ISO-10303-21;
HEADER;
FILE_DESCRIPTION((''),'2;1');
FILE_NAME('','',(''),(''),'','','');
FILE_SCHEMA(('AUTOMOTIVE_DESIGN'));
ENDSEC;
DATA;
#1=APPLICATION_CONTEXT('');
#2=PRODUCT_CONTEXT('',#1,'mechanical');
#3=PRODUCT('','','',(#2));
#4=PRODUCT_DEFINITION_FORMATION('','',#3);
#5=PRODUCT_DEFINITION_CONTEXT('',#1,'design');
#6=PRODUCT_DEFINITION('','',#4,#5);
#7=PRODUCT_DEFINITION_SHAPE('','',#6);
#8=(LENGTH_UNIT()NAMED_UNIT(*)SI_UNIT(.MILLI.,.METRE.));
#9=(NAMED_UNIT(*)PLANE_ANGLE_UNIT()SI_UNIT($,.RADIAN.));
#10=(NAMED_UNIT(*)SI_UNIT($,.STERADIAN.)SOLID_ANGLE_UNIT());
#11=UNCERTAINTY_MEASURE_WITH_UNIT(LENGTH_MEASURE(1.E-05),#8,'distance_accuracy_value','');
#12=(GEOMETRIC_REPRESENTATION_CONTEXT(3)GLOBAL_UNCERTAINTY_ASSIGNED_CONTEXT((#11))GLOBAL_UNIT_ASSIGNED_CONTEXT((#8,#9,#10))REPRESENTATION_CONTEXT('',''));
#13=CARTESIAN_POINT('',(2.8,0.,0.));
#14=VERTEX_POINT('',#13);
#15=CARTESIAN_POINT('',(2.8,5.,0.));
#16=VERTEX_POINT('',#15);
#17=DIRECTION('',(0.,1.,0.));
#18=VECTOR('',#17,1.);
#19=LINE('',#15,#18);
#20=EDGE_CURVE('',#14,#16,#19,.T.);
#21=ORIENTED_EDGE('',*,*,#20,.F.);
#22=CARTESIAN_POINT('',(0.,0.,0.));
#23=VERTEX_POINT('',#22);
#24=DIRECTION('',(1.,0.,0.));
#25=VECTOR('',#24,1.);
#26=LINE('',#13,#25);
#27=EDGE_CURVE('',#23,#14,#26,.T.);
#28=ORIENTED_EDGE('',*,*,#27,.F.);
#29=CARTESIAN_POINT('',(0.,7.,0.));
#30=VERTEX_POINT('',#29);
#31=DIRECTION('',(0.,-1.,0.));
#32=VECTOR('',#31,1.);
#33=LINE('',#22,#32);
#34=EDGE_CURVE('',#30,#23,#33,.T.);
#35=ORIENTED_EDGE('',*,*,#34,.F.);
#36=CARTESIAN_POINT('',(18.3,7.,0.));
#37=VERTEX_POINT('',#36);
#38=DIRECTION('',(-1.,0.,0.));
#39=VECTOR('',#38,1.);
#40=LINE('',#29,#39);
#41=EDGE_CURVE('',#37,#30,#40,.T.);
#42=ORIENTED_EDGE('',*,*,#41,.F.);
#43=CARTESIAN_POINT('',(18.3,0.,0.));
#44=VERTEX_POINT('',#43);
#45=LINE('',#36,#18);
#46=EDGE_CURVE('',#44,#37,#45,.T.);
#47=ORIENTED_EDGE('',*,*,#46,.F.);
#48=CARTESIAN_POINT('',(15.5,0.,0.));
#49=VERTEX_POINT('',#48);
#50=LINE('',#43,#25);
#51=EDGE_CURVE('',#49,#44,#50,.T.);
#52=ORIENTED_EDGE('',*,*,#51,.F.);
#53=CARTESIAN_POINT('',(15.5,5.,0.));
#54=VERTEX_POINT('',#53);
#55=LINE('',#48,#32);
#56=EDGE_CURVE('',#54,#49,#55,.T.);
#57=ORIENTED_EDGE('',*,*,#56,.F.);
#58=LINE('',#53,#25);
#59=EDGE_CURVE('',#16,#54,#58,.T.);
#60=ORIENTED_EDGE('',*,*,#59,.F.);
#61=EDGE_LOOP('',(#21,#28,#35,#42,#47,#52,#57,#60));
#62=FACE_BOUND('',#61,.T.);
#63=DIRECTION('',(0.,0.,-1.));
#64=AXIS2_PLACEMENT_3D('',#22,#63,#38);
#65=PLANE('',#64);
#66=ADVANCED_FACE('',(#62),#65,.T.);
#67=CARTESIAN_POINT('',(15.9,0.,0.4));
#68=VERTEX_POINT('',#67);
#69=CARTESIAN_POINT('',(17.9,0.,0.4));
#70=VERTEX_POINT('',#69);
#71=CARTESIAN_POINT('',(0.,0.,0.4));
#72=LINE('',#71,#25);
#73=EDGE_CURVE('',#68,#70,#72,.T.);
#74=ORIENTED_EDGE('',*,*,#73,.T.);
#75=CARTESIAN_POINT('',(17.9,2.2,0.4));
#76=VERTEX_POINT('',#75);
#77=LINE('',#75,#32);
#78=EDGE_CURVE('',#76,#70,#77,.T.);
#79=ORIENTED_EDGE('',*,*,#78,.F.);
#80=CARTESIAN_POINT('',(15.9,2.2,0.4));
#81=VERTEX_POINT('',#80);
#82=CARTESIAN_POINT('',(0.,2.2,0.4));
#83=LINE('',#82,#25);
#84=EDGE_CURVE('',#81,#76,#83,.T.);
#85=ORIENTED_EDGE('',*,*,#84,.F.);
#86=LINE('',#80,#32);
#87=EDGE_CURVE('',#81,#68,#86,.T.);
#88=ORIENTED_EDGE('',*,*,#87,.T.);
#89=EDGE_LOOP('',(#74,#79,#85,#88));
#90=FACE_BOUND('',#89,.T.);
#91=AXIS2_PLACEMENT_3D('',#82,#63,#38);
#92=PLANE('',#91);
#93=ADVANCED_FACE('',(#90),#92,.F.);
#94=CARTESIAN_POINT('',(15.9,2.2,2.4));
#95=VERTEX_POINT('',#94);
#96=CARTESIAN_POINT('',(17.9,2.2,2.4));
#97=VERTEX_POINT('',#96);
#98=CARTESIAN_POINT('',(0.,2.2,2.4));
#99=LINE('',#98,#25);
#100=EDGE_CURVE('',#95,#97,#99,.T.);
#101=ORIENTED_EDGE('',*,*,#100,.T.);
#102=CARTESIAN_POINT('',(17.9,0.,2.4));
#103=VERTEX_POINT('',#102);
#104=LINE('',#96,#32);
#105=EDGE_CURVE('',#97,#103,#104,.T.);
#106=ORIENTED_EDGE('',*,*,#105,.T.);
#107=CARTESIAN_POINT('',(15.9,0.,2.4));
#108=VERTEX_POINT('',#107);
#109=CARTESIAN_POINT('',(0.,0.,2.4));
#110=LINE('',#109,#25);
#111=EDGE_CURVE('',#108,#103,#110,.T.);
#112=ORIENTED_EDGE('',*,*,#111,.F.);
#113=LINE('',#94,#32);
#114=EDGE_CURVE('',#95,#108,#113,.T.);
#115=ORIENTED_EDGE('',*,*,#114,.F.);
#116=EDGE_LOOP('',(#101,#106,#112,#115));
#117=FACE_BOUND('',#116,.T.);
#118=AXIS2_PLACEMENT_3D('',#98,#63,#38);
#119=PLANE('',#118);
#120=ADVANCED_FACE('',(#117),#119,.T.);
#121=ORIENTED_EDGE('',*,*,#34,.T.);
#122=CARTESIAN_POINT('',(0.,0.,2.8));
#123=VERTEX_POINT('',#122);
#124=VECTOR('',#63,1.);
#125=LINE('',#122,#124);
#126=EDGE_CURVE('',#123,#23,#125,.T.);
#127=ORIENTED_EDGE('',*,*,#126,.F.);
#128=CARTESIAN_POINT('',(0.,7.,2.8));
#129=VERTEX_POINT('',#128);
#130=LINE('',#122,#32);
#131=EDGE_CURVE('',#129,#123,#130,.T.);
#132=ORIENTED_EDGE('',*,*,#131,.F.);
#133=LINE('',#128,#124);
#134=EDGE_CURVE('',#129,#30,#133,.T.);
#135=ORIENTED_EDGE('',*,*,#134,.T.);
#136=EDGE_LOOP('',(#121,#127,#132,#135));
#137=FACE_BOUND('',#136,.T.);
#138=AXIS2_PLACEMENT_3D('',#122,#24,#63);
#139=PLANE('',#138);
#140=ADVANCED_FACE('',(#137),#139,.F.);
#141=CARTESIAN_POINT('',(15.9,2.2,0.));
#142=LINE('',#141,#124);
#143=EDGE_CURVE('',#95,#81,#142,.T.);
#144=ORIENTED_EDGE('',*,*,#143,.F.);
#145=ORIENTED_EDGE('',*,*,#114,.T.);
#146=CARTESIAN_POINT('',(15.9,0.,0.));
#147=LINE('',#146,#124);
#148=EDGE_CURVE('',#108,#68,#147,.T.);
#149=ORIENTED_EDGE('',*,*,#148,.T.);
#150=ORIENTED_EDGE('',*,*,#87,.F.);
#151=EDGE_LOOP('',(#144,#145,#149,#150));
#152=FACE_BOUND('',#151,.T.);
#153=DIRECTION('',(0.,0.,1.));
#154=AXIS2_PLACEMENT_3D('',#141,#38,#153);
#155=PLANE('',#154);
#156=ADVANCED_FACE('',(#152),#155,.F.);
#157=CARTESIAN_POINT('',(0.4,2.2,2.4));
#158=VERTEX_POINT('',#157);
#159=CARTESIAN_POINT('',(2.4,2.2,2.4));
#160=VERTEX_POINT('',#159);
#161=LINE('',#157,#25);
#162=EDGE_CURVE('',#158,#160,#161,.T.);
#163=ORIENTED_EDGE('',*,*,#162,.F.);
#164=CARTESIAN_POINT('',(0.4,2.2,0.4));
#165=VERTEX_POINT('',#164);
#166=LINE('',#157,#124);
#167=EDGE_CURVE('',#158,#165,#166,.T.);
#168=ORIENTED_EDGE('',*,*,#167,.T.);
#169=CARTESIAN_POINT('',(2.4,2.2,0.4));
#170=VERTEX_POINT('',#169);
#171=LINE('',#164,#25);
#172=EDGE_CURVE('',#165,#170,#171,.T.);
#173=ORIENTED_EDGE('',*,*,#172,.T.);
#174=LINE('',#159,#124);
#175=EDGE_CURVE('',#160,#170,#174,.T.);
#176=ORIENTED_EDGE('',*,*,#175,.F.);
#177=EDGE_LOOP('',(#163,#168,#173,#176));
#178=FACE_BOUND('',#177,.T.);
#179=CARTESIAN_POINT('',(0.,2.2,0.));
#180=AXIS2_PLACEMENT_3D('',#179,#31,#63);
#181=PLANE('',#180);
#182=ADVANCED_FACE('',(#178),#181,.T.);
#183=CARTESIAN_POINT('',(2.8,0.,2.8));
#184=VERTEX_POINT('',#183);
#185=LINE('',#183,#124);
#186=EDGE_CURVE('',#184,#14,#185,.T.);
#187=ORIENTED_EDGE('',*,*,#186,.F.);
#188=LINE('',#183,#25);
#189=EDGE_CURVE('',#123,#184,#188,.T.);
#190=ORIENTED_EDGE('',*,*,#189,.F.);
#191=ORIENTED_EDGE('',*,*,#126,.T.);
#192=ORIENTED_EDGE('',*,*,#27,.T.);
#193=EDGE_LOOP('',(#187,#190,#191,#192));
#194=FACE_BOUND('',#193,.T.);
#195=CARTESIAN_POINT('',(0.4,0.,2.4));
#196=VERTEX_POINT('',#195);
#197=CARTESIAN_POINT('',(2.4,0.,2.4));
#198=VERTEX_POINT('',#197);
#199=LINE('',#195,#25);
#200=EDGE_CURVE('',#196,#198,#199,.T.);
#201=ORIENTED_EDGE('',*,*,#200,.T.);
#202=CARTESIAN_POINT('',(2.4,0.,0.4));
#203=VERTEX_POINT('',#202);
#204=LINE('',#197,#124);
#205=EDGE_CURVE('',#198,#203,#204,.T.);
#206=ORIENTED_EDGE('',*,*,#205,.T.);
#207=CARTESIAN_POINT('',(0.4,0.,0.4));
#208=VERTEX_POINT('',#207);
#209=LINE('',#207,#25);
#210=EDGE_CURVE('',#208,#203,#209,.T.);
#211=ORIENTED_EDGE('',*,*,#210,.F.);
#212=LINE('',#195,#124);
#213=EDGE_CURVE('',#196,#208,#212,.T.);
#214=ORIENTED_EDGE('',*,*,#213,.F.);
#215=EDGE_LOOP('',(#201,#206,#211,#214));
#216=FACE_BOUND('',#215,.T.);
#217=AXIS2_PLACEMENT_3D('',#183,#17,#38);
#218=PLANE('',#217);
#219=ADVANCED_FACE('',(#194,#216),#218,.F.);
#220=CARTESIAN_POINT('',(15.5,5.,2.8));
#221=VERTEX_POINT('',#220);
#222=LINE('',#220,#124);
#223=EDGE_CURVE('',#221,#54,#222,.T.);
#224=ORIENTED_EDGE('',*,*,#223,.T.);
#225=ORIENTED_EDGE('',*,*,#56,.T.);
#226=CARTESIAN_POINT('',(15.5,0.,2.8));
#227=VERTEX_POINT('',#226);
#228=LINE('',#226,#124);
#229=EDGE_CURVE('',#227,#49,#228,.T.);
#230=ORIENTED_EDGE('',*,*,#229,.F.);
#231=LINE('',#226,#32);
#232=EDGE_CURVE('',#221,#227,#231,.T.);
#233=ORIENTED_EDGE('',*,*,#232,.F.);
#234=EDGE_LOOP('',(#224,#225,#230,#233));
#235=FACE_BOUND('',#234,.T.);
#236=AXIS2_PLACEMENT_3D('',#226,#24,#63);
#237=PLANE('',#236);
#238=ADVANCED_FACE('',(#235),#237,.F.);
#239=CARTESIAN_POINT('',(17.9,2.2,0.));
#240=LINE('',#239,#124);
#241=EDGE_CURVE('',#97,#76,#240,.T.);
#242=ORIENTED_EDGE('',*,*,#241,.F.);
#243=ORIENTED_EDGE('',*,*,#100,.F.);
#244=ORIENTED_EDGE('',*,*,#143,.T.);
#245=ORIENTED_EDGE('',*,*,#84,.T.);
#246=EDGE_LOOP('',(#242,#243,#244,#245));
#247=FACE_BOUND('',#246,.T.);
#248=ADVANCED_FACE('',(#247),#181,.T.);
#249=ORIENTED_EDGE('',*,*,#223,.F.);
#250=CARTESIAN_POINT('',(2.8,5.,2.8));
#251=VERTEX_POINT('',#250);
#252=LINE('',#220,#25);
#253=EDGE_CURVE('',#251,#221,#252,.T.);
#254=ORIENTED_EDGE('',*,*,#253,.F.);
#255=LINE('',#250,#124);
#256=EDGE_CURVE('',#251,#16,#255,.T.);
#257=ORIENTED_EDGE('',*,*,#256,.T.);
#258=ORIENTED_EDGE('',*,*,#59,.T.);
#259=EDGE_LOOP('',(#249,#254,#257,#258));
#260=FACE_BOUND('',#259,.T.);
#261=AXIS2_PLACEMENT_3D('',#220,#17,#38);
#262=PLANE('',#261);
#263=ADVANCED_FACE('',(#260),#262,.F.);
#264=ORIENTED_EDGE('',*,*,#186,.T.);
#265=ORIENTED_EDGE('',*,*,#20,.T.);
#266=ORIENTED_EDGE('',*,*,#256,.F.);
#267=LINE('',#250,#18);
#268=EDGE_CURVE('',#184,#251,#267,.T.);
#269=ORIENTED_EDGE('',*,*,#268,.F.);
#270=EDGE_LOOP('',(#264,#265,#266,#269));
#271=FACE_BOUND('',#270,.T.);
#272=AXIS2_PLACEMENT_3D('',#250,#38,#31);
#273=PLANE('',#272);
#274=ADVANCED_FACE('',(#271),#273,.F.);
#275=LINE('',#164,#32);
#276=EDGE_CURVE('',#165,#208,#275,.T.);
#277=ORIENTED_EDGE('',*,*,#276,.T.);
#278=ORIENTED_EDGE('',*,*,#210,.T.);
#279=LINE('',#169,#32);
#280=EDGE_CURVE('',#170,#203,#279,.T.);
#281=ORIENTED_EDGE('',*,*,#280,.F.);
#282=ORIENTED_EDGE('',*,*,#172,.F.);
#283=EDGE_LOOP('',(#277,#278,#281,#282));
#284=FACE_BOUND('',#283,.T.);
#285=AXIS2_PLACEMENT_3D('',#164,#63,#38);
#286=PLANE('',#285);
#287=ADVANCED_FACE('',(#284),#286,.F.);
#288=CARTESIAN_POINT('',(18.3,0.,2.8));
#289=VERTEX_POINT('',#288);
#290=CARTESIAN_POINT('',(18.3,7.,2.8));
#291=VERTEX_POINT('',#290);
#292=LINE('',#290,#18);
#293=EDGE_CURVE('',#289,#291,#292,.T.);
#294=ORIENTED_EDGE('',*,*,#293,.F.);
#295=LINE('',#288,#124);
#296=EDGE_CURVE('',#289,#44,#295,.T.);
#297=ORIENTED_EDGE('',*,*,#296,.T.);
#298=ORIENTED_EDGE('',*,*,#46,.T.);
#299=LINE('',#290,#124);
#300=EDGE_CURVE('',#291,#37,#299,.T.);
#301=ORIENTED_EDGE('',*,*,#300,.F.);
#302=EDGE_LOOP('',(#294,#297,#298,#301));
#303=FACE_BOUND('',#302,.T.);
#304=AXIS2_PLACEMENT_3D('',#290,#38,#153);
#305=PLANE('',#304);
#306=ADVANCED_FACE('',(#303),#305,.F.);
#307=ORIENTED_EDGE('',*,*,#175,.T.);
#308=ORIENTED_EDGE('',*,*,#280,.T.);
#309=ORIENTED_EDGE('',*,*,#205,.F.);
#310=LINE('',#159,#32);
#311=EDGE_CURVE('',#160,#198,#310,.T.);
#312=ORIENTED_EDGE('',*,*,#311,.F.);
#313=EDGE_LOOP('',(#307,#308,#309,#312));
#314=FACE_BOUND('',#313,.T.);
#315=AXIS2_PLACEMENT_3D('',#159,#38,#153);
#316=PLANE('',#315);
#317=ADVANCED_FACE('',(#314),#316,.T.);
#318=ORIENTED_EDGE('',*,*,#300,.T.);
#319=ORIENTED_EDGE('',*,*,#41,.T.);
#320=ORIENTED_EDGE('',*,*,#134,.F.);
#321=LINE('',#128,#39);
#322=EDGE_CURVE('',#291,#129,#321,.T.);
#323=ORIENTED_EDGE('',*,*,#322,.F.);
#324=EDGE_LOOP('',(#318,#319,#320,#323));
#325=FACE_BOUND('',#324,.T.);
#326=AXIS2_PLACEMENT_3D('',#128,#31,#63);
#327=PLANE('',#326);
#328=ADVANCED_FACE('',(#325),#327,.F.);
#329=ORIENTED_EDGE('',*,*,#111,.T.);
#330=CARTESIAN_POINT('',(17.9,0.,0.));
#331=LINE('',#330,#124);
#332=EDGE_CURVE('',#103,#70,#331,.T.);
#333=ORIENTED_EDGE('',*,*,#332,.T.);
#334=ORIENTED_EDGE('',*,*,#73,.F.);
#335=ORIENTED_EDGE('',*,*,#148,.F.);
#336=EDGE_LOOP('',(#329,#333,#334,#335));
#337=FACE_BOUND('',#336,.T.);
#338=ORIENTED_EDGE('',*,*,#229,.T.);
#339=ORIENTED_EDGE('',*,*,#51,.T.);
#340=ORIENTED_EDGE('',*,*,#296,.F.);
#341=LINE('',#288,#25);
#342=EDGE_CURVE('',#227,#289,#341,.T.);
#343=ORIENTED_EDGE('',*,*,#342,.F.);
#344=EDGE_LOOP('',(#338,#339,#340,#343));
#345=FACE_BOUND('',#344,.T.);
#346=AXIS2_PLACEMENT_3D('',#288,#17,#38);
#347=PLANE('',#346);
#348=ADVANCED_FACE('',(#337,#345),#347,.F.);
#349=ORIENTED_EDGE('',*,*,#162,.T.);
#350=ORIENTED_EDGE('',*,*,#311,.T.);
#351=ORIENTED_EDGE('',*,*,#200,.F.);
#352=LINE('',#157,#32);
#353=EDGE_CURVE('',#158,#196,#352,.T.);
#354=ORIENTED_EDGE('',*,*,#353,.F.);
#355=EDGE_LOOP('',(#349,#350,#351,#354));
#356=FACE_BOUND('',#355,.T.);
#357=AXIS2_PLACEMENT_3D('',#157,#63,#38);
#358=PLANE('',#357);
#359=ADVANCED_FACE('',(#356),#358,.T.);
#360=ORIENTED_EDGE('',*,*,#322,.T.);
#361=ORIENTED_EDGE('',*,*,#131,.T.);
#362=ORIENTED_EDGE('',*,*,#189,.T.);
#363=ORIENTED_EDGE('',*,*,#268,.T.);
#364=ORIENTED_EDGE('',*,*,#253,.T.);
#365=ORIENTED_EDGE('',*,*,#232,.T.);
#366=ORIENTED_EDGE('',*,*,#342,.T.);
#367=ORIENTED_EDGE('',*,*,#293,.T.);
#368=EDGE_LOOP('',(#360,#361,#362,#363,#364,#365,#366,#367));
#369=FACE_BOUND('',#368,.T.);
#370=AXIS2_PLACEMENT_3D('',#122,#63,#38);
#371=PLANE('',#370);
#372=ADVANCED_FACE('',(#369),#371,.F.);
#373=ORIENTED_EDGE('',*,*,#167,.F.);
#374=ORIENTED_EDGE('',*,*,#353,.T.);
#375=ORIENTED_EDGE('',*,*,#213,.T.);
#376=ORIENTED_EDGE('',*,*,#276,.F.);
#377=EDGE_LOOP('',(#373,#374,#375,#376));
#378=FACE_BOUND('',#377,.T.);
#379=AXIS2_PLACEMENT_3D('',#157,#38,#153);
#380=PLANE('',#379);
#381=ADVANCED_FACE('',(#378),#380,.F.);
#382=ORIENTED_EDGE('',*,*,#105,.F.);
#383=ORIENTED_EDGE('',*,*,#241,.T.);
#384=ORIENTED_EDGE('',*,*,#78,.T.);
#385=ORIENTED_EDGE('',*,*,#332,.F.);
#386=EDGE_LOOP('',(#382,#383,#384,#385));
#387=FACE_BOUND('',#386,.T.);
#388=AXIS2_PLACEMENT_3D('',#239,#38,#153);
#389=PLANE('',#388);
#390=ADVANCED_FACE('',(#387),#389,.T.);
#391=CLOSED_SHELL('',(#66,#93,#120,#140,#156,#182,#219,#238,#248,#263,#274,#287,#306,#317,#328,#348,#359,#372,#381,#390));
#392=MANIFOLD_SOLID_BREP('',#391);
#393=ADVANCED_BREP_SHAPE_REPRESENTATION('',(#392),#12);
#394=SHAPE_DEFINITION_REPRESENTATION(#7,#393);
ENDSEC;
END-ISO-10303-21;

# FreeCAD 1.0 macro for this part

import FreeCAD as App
import Part
import Sketcher
Q = App.Units.Quantity

doc = App.newDocument("Part")
body = doc.addObject("PartDesign::Body", "Body")

# Sketch on XY plane
sketch1 = doc.addObject("Sketcher::SketchObject", "Sketch")
body.addObject(sketch1)
sketch1.AttachmentSupport = (doc.XY_Plane, [""])
sketch1.MapMode = "FlatFace"
sketch1.addGeometry([
    Part.LineSegment(App.Vector(0, 7, 0), App.Vector(0, 0, 0)),  # 0
    Part.LineSegment(App.Vector(0, 0, 0), App.Vector(2.8, 0, 0)),  # 1
    Part.LineSegment(App.Vector(2.8, 0, 0), App.Vector(2.8, 5, 0)),  # 2
    Part.LineSegment(App.Vector(2.8, 5, 0), App.Vector(15.5, 5, 0)),  # 3
    Part.LineSegment(App.Vector(15.5, 5, 0), App.Vector(15.5, 0, 0)),  # 4
    Part.LineSegment(App.Vector(15.5, 0, 0), App.Vector(18.3, 0, 0)),  # 5
    Part.LineSegment(App.Vector(18.3, 0, 0), App.Vector(18.3, 7, 0)),  # 6
    Part.LineSegment(App.Vector(18.3, 7, 0), App.Vector(0, 7, 0)),  # 7
], False)
sketch1.addConstraint([
    Sketcher.Constraint("Coincident", 0, 2, 1, 1),
    Sketcher.Constraint("Coincident", 1, 2, 2, 1),
    Sketcher.Constraint("Coincident", 2, 2, 3, 1),
    Sketcher.Constraint("Coincident", 3, 2, 4, 1),
    Sketcher.Constraint("Coincident", 4, 2, 5, 1),
    Sketcher.Constraint("Coincident", 5, 2, 6, 1),
    Sketcher.Constraint("Coincident", 6, 2, 7, 1),
    Sketcher.Constraint("Coincident", 7, 2, 0, 1),
    Sketcher.Constraint("Vertical", 0),
    Sketcher.Constraint("Horizontal", 1),
    Sketcher.Constraint("Vertical", 2),
    Sketcher.Constraint("Horizontal", 3),
    Sketcher.Constraint("Vertical", 4),
    Sketcher.Constraint("Horizontal", 5),
    Sketcher.Constraint("Vertical", 6),
    Sketcher.Constraint("Horizontal", 7),
    Sketcher.Constraint("Coincident", 0, 2, -1, 1),
    Sketcher.Constraint("PointOnObject", 4, 2, -1),
    Sketcher.Constraint("Equal", 1, 5),
    Sketcher.Constraint("DistanceY", 0, 2, 0, 1, Q("7 mm")),
    Sketcher.Constraint("DistanceY", 2, 1, 2, 2, Q("5 mm")),
    Sketcher.Constraint("DistanceX", 1, 1, 1, 2, Q("2.8 mm")),
    Sketcher.Constraint("DistanceX", 3, 1, 3, 2, Q("12.7 mm")),
])
pad1 = doc.addObject("PartDesign::Pad", "Pad")
body.addObject(pad1)
pad1.Profile = sketch1
pad1.Length = 2.8

# Sketch on XZ plane
sketch2 = doc.addObject("Sketcher::SketchObject", "Sketch001")
body.addObject(sketch2)
sketch2.AttachmentSupport = (doc.XZ_Plane, [""])
sketch2.MapMode = "FlatFace"
sketch2.addGeometry([
    Part.LineSegment(App.Vector(15.9, 2.4, 0), App.Vector(15.9, 0.4, 0)),  # 0
    Part.LineSegment(App.Vector(15.9, 0.4, 0), App.Vector(17.9, 0.4, 0)),  # 1
    Part.LineSegment(App.Vector(17.9, 0.4, 0), App.Vector(17.9, 2.4, 0)),  # 2
    Part.LineSegment(App.Vector(17.9, 2.4, 0), App.Vector(15.9, 2.4, 0)),  # 3
    Part.LineSegment(App.Vector(0.4, 2.4, 0), App.Vector(0.4, 0.4, 0)),  # 4
    Part.LineSegment(App.Vector(0.4, 0.4, 0), App.Vector(2.4, 0.4, 0)),  # 5
    Part.LineSegment(App.Vector(2.4, 0.4, 0), App.Vector(2.4, 2.4, 0)),  # 6
    Part.LineSegment(App.Vector(2.4, 2.4, 0), App.Vector(0.4, 2.4, 0)),  # 7
], False)
sketch2.addConstraint([
    Sketcher.Constraint("Coincident", 0, 2, 1, 1),
    Sketcher.Constraint("Coincident", 1, 2, 2, 1),
    Sketcher.Constraint("Coincident", 2, 2, 3, 1),
    Sketcher.Constraint("Coincident", 3, 2, 0, 1),
    Sketcher.Constraint("Coincident", 4, 2, 5, 1),
    Sketcher.Constraint("Coincident", 5, 2, 6, 1),
    Sketcher.Constraint("Coincident", 6, 2, 7, 1),
    Sketcher.Constraint("Coincident", 7, 2, 4, 1),
    Sketcher.Constraint("Vertical", 0),
    Sketcher.Constraint("Horizontal", 1),
    Sketcher.Constraint("Vertical", 2),
    Sketcher.Constraint("Horizontal", 3),
    Sketcher.Constraint("Vertical", 4),
    Sketcher.Constraint("Horizontal", 5),
    Sketcher.Constraint("Vertical", 6),
    Sketcher.Constraint("Horizontal", 7),
    Sketcher.Constraint("Horizontal", 1, 2, 4, 2),
    Sketcher.Constraint("Horizontal", 3, 2, 6, 2),
    Sketcher.Constraint("Equal", 3, 5),
    Sketcher.Constraint("Equal", 7, 0),
    Sketcher.Constraint("DistanceX", 1, 1, 1, 2, Q("2 mm")),
    Sketcher.Constraint("DistanceX", -1, 1, 0, 2, Q("15.9 mm")),
    Sketcher.Constraint("DistanceY", -1, 1, 0, 2, Q("0.4 mm")),
    Sketcher.Constraint("DistanceX", -1, 1, 4, 2, Q("0.4 mm")),
])
pocket1 = doc.addObject("PartDesign::Pocket", "Pocket")
body.addObject(pocket1)
pocket1.Profile = sketch2
pocket1.Length = 2.2

doc.recompute()
